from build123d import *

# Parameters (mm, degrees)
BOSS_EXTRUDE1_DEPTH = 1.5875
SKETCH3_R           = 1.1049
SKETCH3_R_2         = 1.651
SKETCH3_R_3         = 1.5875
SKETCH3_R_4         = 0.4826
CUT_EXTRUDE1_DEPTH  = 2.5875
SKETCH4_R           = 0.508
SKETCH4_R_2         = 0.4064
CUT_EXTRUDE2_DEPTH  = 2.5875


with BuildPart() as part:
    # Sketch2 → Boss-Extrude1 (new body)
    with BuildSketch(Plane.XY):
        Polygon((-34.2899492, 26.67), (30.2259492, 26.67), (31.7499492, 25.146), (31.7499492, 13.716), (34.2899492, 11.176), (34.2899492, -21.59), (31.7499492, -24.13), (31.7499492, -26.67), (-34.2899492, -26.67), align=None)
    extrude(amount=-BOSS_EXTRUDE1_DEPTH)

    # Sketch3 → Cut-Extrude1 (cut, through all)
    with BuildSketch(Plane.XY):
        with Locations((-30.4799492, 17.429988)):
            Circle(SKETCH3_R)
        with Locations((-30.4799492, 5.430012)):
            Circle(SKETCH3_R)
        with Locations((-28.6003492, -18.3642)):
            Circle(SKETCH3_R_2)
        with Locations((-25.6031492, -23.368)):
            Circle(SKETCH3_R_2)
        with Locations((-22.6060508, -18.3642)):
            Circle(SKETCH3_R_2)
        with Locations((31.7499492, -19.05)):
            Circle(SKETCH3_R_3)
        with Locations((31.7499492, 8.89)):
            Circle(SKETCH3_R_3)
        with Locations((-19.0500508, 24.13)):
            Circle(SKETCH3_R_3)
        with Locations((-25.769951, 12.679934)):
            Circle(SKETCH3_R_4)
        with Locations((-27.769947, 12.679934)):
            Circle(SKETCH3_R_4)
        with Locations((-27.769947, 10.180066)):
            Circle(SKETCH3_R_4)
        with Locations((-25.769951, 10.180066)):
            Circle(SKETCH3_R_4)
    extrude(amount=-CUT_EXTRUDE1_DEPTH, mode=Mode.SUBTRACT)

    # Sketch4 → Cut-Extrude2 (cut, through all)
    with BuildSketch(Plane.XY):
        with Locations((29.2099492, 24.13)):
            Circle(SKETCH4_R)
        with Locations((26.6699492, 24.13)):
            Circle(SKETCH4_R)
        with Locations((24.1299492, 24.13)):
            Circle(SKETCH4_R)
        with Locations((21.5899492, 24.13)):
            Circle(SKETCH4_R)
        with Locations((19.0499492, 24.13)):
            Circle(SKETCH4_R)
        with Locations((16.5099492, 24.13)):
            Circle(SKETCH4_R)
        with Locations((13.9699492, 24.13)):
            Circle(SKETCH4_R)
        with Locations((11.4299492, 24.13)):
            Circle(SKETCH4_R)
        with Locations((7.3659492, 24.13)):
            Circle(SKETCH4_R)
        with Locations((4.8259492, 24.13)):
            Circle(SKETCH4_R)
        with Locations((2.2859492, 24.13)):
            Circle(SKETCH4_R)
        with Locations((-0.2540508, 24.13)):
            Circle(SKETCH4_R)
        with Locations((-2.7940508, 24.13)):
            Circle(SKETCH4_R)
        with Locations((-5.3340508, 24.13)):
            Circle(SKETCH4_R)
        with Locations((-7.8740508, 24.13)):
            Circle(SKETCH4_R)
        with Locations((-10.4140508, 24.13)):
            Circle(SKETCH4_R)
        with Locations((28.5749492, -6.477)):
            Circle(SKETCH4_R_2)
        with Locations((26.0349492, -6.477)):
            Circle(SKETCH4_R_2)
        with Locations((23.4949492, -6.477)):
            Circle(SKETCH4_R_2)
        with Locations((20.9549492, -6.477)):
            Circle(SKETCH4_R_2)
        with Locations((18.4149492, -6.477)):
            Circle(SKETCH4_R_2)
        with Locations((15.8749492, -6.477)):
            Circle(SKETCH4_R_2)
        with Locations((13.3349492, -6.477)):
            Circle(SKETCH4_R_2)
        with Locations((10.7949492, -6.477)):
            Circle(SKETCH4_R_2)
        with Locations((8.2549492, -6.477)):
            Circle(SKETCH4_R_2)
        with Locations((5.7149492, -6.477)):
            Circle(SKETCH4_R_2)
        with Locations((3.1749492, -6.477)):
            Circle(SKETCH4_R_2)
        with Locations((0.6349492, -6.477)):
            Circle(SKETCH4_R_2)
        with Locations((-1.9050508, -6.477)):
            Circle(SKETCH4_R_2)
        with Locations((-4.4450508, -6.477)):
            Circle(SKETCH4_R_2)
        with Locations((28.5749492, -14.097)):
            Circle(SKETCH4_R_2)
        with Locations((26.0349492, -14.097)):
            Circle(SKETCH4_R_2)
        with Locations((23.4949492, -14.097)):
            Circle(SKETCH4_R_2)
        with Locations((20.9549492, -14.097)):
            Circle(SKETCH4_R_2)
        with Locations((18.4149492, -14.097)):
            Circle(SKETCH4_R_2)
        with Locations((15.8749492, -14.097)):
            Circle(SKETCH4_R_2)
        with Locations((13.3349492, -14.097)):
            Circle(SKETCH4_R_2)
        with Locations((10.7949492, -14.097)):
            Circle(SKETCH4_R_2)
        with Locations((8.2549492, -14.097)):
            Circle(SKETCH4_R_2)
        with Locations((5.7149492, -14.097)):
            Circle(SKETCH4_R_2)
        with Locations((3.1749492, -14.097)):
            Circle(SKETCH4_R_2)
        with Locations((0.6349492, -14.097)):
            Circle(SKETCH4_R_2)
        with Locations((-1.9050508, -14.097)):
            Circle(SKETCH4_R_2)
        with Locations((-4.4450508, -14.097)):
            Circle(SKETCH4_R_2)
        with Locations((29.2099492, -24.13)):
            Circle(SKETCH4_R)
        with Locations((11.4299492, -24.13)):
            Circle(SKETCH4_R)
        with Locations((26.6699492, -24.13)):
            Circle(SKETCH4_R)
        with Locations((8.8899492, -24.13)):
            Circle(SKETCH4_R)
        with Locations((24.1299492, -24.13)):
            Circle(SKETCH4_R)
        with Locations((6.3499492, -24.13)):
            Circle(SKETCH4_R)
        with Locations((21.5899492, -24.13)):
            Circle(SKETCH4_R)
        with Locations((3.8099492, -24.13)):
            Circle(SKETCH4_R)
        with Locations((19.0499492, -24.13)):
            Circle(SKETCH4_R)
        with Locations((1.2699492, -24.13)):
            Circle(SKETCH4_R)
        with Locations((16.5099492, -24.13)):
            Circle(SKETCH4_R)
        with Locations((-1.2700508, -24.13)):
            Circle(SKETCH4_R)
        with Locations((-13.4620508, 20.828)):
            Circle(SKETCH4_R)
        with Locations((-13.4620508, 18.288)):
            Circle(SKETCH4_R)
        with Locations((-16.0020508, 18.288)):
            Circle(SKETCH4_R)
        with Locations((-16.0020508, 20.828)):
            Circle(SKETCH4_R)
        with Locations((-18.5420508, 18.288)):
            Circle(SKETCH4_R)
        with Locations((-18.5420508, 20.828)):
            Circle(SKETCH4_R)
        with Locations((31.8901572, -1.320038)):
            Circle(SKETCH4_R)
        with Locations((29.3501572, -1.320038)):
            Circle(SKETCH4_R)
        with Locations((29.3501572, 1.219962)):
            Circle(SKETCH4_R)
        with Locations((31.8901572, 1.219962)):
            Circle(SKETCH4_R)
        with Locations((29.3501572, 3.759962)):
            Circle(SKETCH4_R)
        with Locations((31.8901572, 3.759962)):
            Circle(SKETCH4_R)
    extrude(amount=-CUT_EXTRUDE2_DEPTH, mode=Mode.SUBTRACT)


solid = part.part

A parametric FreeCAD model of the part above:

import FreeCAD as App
import Part
import Sketcher
Q = App.Units.Quantity


def add_polygon(sketch, points):
    """Adds a closed chain of lines whose ends are joined by coincident constraints."""
    first, n = sketch.GeometryCount, len(points)
    for a, b in zip(points, points[1:] + points[:1]):
        sketch.addGeometry(Part.LineSegment(App.Vector(*a, 0), App.Vector(*b, 0)), False)
    for i in range(n):
        sketch.addConstraint(Sketcher.Constraint("Coincident", first + i, 2, first + (i + 1) % n, 1))

doc = App.newDocument("Part")
body = doc.addObject("PartDesign::Body", "Body")

sketch1 = body.newObject("Sketcher::SketchObject", "Sketch")
sketch1.AttachmentSupport = (doc.getObject("XY_Plane"), [""])
sketch1.MapMode = "FlatFace"
add_polygon(sketch1, [(30.2, 26.7), (-34.3, 26.7), (-34.3, -26.7), (31.7, -26.7), (31.7, -24.1), (34.3, -21.6), (34.3, 11.2), (31.7, 13.7), (31.7, 25.1)])
sketch1.addConstraint([
    Sketcher.Constraint("Horizontal", 0),
    Sketcher.Constraint("Vertical", 1),
    Sketcher.Constraint("Horizontal", 2),
    Sketcher.Constraint("Vertical", 3),
    Sketcher.Constraint("Vertical", 5),
    Sketcher.Constraint("Vertical", 7),
    Sketcher.Constraint("Perpendicular", 4, 6),
    Sketcher.Constraint("Parallel", 6, 8),
    Sketcher.Constraint("Vertical", 3, 2, 6, 2),
    Sketcher.Constraint("Equal", 4, 6),
    Sketcher.Constraint("DistanceY", 1, 2, 1, 1, Q("2.1 in")),
    Sketcher.Constraint("DistanceY", 3, 1, 3, 2, Q("0.1 in")),
    Sketcher.Constraint("DistanceY", 5, 1, 5, 2, Q("1.29 in")),
    Sketcher.Constraint("DistanceY", 7, 1, 7, 2, Q("0.45 in")),
    Sketcher.Constraint("DistanceX", 3, 2, 4, 2, Q("0.1 in")),
    Sketcher.Constraint("DistanceY", -1, 1, 0, 2, Q("1.05 in")),
    Sketcher.Constraint("DistanceX", 0, 2, 0, 1, 64.515898),
    Sketcher.Constraint("DistanceX", 0, 2, -1, 1, 34.289949),
])
pad1 = body.newObject("PartDesign::Pad", "Pad")
pad1.Profile = sketch1
pad1.Length = Q("0.0625 in")
pad1.Reversed = True

sketch2 = body.newObject("Sketcher::SketchObject", "Sketch001")
sketch2.AttachmentSupport = (doc.getObject("XY_Plane"), [""])
sketch2.MapMode = "FlatFace"
sketch2.addGeometry([
    Part.Circle(App.Vector(-30.48, 17.43, 0), App.Vector(0, 0, 1), 1.1),
    Part.Circle(App.Vector(-30.48, 5.43, 0), App.Vector(0, 0, 1), 1.1),
    Part.Circle(App.Vector(-28.6, -18.36, 0), App.Vector(0, 0, 1), 1.65),
    Part.Circle(App.Vector(-25.6, -23.37, 0), App.Vector(0, 0, 1), 1.65),
    Part.Circle(App.Vector(-22.61, -18.36, 0), App.Vector(0, 0, 1), 1.65),
    Part.Circle(App.Vector(31.75, -19.05, 0), App.Vector(0, 0, 1), 1.59),
    Part.Circle(App.Vector(31.75, 8.89, 0), App.Vector(0, 0, 1), 1.59),
    Part.Circle(App.Vector(-19.05, 24.13, 0), App.Vector(0, 0, 1), 1.59),
    Part.Circle(App.Vector(-25.77, 12.68, 0), App.Vector(0, 0, 1), 0.48),
    Part.Circle(App.Vector(-27.77, 12.68, 0), App.Vector(0, 0, 1), 0.48),
    Part.Circle(App.Vector(-27.77, 10.18, 0), App.Vector(0, 0, 1), 0.48),
    Part.Circle(App.Vector(-25.77, 10.18, 0), App.Vector(0, 0, 1), 0.48),
], False)
sketch2.addConstraint([
    Sketcher.Constraint("Equal", 0, 1),
    Sketcher.Constraint("Equal", 2, 3),
    Sketcher.Constraint("Equal", 3, 4),
    Sketcher.Constraint("Equal", 5, 6),
    Sketcher.Constraint("Equal", 6, 7),
    Sketcher.Constraint("Equal", 8, 9),
    Sketcher.Constraint("Equal", 9, 10),
    Sketcher.Constraint("Equal", 10, 11),
    Sketcher.Constraint("Horizontal", 2, 3, 4, 3),
    Sketcher.Constraint("Horizontal", 8, 3, 9, 3),
    Sketcher.Constraint("Horizontal", 10, 3, 11, 3),
    Sketcher.Constraint("Vertical", 0, 3, 1, 3),
    Sketcher.Constraint("Vertical", 5, 3, 6, 3),
    Sketcher.Constraint("Vertical", 9, 3, 10, 3),
    Sketcher.Constraint("Vertical", 8, 3, 11, 3),
    Sketcher.Constraint("Diameter", 2, Q("0.13 in")),
    Sketcher.Constraint("Diameter", 0, Q("0.087 in")),
    Sketcher.Constraint("Diameter", 5, Q("0.125 in")),
    Sketcher.Constraint("Diameter", 8, Q("0.038 in")),
    Sketcher.Constraint("DistanceY", 5, 3, 6, 3, Q("1.1 in")),
    Sketcher.Constraint("DistanceY", 3, 3, -1, 1, Q("0.92 in")),
    Sketcher.Constraint("DistanceY", 5, 3, -1, 1, Q("0.75 in")),
    Sketcher.Constraint("DistanceY", -1, 1, 7, 3, Q("0.95 in")),
    Sketcher.Constraint("DistanceX", 4, 3, 5, 3, Q("2.14 in")),
    Sketcher.Constraint("DistanceX", 4, 3, 7, 3, Q("0.14 in")),
    Sketcher.Constraint("DistanceY", 2, 3, -1, 1, Q("0.723 in")),
    Sketcher.Constraint("DistanceX", 1, 3, 2, 3, Q("0.074 in")),
    Sketcher.Constraint("DistanceX", 2, 3, 3, 3, Q("0.118 in")),
    Sketcher.Constraint("DistanceX", 3, 3, 4, 3, 2.997098),
    Sketcher.Constraint("DistanceX", 0, 3, 8, 3, 4.709998),
    Sketcher.Constraint("DistanceX", 0, 3, -1, 1, 30.479949),
    Sketcher.Constraint("DistanceY", -1, 1, 0, 3, 17.429988),
    Sketcher.Constraint("DistanceY", -1, 1, 1, 3, 5.430012),
    Sketcher.Constraint("DistanceY", 1, 3, 8, 3, 7.249922),
    Sketcher.Constraint("DistanceX", 9, 3, -1, 1, 27.769947),
    Sketcher.Constraint("DistanceY", -1, 1, 10, 3, 10.180066),
])
pocket1 = body.newObject("PartDesign::Pocket", "Pocket")
pocket1.Profile = sketch2
pocket1.Type = "ThroughAll"

sketch3 = body.newObject("Sketcher::SketchObject", "Sketch002")
sketch3.AttachmentSupport = (doc.getObject("XY_Plane"), [""])
sketch3.MapMode = "FlatFace"
sketch3.addGeometry([
    Part.Circle(App.Vector(29.21, 24.13, 0), App.Vector(0, 0, 1), 0.51),
    Part.Circle(App.Vector(26.67, 24.13, 0), App.Vector(0, 0, 1), 0.51),
    Part.Circle(App.Vector(24.13, 24.13, 0), App.Vector(0, 0, 1), 0.51),
    Part.Circle(App.Vector(21.59, 24.13, 0), App.Vector(0, 0, 1), 0.51),
    Part.Circle(App.Vector(19.05, 24.13, 0), App.Vector(0, 0, 1), 0.51),
    Part.Circle(App.Vector(16.51, 24.13, 0), App.Vector(0, 0, 1), 0.51),
    Part.Circle(App.Vector(13.97, 24.13, 0), App.Vector(0, 0, 1), 0.51),
    Part.Circle(App.Vector(11.43, 24.13, 0), App.Vector(0, 0, 1), 0.51),
    Part.Circle(App.Vector(7.37, 24.13, 0), App.Vector(0, 0, 1), 0.51),
    Part.Circle(App.Vector(4.83, 24.13, 0), App.Vector(0, 0, 1), 0.51),
    Part.Circle(App.Vector(2.29, 24.13, 0), App.Vector(0, 0, 1), 0.51),
    Part.Circle(App.Vector(-0.25, 24.13, 0), App.Vector(0, 0, 1), 0.51),
    Part.Circle(App.Vector(-2.79, 24.13, 0), App.Vector(0, 0, 1), 0.51),
    Part.Circle(App.Vector(-5.33, 24.13, 0), App.Vector(0, 0, 1), 0.51),
    Part.Circle(App.Vector(-7.87, 24.13, 0), App.Vector(0, 0, 1), 0.51),
    Part.Circle(App.Vector(-10.41, 24.13, 0), App.Vector(0, 0, 1), 0.51),
    Part.Circle(App.Vector(28.57, -6.48, 0), App.Vector(0, 0, 1), 0.41),
    Part.Circle(App.Vector(26.03, -6.48, 0), App.Vector(0, 0, 1), 0.41),
    Part.Circle(App.Vector(23.49, -6.48, 0), App.Vector(0, 0, 1), 0.41),
    Part.Circle(App.Vector(20.95, -6.48, 0), App.Vector(0, 0, 1), 0.41),
    Part.Circle(App.Vector(18.41, -6.48, 0), App.Vector(0, 0, 1), 0.41),
    Part.Circle(App.Vector(15.87, -6.48, 0), App.Vector(0, 0, 1), 0.41),
    Part.Circle(App.Vector(13.33, -6.48, 0), App.Vector(0, 0, 1), 0.41),
    Part.Circle(App.Vector(10.79, -6.48, 0), App.Vector(0, 0, 1), 0.41),
    Part.Circle(App.Vector(8.25, -6.48, 0), App.Vector(0, 0, 1), 0.41),
    Part.Circle(App.Vector(5.71, -6.48, 0), App.Vector(0, 0, 1), 0.41),
    Part.Circle(App.Vector(3.17, -6.48, 0), App.Vector(0, 0, 1), 0.41),
    Part.Circle(App.Vector(0.63, -6.48, 0), App.Vector(0, 0, 1), 0.41),
    Part.Circle(App.Vector(-1.91, -6.48, 0), App.Vector(0, 0, 1), 0.41),
    Part.Circle(App.Vector(-4.45, -6.48, 0), App.Vector(0, 0, 1), 0.41),
    Part.Circle(App.Vector(28.57, -14.1, 0), App.Vector(0, 0, 1), 0.41),
    Part.Circle(App.Vector(26.03, -14.1, 0), App.Vector(0, 0, 1), 0.41),
    Part.Circle(App.Vector(23.49, -14.1, 0), App.Vector(0, 0, 1), 0.41),
    Part.Circle(App.Vector(20.95, -14.1, 0), App.Vector(0, 0, 1), 0.41),
    Part.Circle(App.Vector(18.41, -14.1, 0), App.Vector(0, 0, 1), 0.41),
    Part.Circle(App.Vector(15.87, -14.1, 0), App.Vector(0, 0, 1), 0.41),
    Part.Circle(App.Vector(13.33, -14.1, 0), App.Vector(0, 0, 1), 0.41),
    Part.Circle(App.Vector(10.79, -14.1, 0), App.Vector(0, 0, 1), 0.41),
    Part.Circle(App.Vector(8.25, -14.1, 0), App.Vector(0, 0, 1), 0.41),
    Part.Circle(App.Vector(5.71, -14.1, 0), App.Vector(0, 0, 1), 0.41),
    Part.Circle(App.Vector(3.17, -14.1, 0), App.Vector(0, 0, 1), 0.41),
    Part.Circle(App.Vector(0.63, -14.1, 0), App.Vector(0, 0, 1), 0.41),
    Part.Circle(App.Vector(-1.91, -14.1, 0), App.Vector(0, 0, 1), 0.41),
    Part.Circle(App.Vector(-4.45, -14.1, 0), App.Vector(0, 0, 1), 0.41),
    Part.Circle(App.Vector(29.21, -24.13, 0), App.Vector(0, 0, 1), 0.51),
    Part.Circle(App.Vector(11.43, -24.13, 0), App.Vector(0, 0, 1), 0.51),
    Part.Circle(App.Vector(26.67, -24.13, 0), App.Vector(0, 0, 1), 0.51),
    Part.Circle(App.Vector(8.89, -24.13, 0), App.Vector(0, 0, 1), 0.51),
    Part.Circle(App.Vector(24.13, -24.13, 0), App.Vector(0, 0, 1), 0.51),
    Part.Circle(App.Vector(6.35, -24.13, 0), App.Vector(0, 0, 1), 0.51),
    Part.Circle(App.Vector(21.59, -24.13, 0), App.Vector(0, 0, 1), 0.51),
    Part.Circle(App.Vector(3.81, -24.13, 0), App.Vector(0, 0, 1), 0.51),
    Part.Circle(App.Vector(19.05, -24.13, 0), App.Vector(0, 0, 1), 0.51),
    Part.Circle(App.Vector(1.27, -24.13, 0), App.Vector(0, 0, 1), 0.51),
    Part.Circle(App.Vector(16.51, -24.13, 0), App.Vector(0, 0, 1), 0.51),
    Part.Circle(App.Vector(-1.27, -24.13, 0), App.Vector(0, 0, 1), 0.51),
    Part.Circle(App.Vector(-13.46, 20.83, 0), App.Vector(0, 0, 1), 0.51),
    Part.Circle(App.Vector(-13.46, 18.29, 0), App.Vector(0, 0, 1), 0.51),
    Part.Circle(App.Vector(-16, 18.29, 0), App.Vector(0, 0, 1), 0.51),
    Part.Circle(App.Vector(-16, 20.83, 0), App.Vector(0, 0, 1), 0.51),
    Part.Circle(App.Vector(-18.54, 18.29, 0), App.Vector(0, 0, 1), 0.51),
    Part.Circle(App.Vector(-18.54, 20.83, 0), App.Vector(0, 0, 1), 0.51),
    Part.Circle(App.Vector(31.89, -1.32, 0), App.Vector(0, 0, 1), 0.51),
    Part.Circle(App.Vector(29.35, -1.32, 0), App.Vector(0, 0, 1), 0.51),
    Part.Circle(App.Vector(29.35, 1.22, 0), App.Vector(0, 0, 1), 0.51),
    Part.Circle(App.Vector(31.89, 1.22, 0), App.Vector(0, 0, 1), 0.51),
    Part.Circle(App.Vector(29.35, 3.76, 0), App.Vector(0, 0, 1), 0.51),
    Part.Circle(App.Vector(31.89, 3.76, 0), App.Vector(0, 0, 1), 0.51),
], False)
sketch3.addConstraint([
    Sketcher.Constraint("Equal", 0, 1),
    Sketcher.Constraint("Equal", 1, 2),
    Sketcher.Constraint("Equal", 2, 3),
    Sketcher.Constraint("Equal", 3, 4),
    Sketcher.Constraint("Equal", 4, 5),
    Sketcher.Constraint("Equal", 5, 6),
    Sketcher.Constraint("Equal", 6, 7),
    Sketcher.Constraint("Equal", 7, 8),
    Sketcher.Constraint("Equal", 8, 9),
    Sketcher.Constraint("Equal", 9, 10),
    Sketcher.Constraint("Equal", 10, 11),
    Sketcher.Constraint("Equal", 11, 12),
    Sketcher.Constraint("Equal", 12, 13),
    Sketcher.Constraint("Equal", 13, 14),
    Sketcher.Constraint("Equal", 14, 15),
    Sketcher.Constraint("Equal", 16, 17),
    Sketcher.Constraint("Equal", 17, 18),
    Sketcher.Constraint("Equal", 18, 19),
    Sketcher.Constraint("Equal", 19, 20),
    Sketcher.Constraint("Equal", 20, 21),
    Sketcher.Constraint("Equal", 21, 22),
    Sketcher.Constraint("Equal", 22, 23),
    Sketcher.Constraint("Equal", 23, 24),
    Sketcher.Constraint("Equal", 24, 25),
    Sketcher.Constraint("Equal", 25, 26),
    Sketcher.Constraint("Equal", 26, 27),
    Sketcher.Constraint("Equal", 27, 28),
    Sketcher.Constraint("Equal", 28, 29),
    Sketcher.Constraint("Equal", 29, 30),
    Sketcher.Constraint("Equal", 30, 31),
    Sketcher.Constraint("Equal", 31, 32),
    Sketcher.Constraint("Equal", 32, 33),
    Sketcher.Constraint("Equal", 33, 34),
    Sketcher.Constraint("Equal", 34, 35),
    Sketcher.Constraint("Equal", 35, 36),
    Sketcher.Constraint("Equal", 36, 37),
    Sketcher.Constraint("Equal", 37, 38),
    Sketcher.Constraint("Equal", 38, 39),
    Sketcher.Constraint("Equal", 39, 40),
    Sketcher.Constraint("Equal", 40, 41),
    Sketcher.Constraint("Equal", 41, 42),
    Sketcher.Constraint("Equal", 42, 43),
    Sketcher.Constraint("Equal", 15, 44),
    Sketcher.Constraint("Equal", 44, 45),
    Sketcher.Constraint("Equal", 45, 46),
    Sketcher.Constraint("Equal", 46, 47),
    Sketcher.Constraint("Equal", 47, 48),
    Sketcher.Constraint("Equal", 48, 49),
    Sketcher.Constraint("Equal", 49, 50),
    Sketcher.Constraint("Equal", 50, 51),
    Sketcher.Constraint("Equal", 51, 52),
    Sketcher.Constraint("Equal", 52, 53),
    Sketcher.Constraint("Equal", 53, 54),
    Sketcher.Constraint("Equal", 54, 55),
    Sketcher.Constraint("Equal", 55, 56),
    Sketcher.Constraint("Equal", 56, 57),
    Sketcher.Constraint("Equal", 57, 58),
    Sketcher.Constraint("Equal", 58, 59),
    Sketcher.Constraint("Equal", 59, 60),
    Sketcher.Constraint("Equal", 60, 61),
    Sketcher.Constraint("Equal", 61, 62),
    Sketcher.Constraint("Equal", 62, 63),
    Sketcher.Constraint("Equal", 63, 64),
    Sketcher.Constraint("Equal", 64, 65),
    Sketcher.Constraint("Equal", 65, 66),
    Sketcher.Constraint("Equal", 66, 67),
    Sketcher.Constraint("Symmetric", 0, 3, 44, 3, -1),
    Sketcher.Constraint("Symmetric", 7, 3, 45, 3, -1),
    Sketcher.Constraint("Symmetric", 1, 3, 46, 3, -1),
    Sketcher.Constraint("Symmetric", 2, 3, 48, 3, -1),
    Sketcher.Constraint("Symmetric", 3, 3, 50, 3, -1),
    Sketcher.Constraint("Symmetric", 4, 3, 52, 3, -1),
    Sketcher.Constraint("Symmetric", 5, 3, 54, 3, -1),
    Sketcher.Constraint("Horizontal", 0, 3, 1, 3),
    Sketcher.Constraint("Horizontal", 1, 3, 2, 3),
    Sketcher.Constraint("Horizontal", 2, 3, 3, 3),
    Sketcher.Constraint("Horizontal", 3, 3, 4, 3),
    Sketcher.Constraint("Horizontal", 4, 3, 5, 3),
    Sketcher.Constraint("Horizontal", 5, 3, 6, 3),
    Sketcher.Constraint("Horizontal", 6, 3, 7, 3),
    Sketcher.Constraint("Horizontal", 7, 3, 8, 3),
    Sketcher.Constraint("Horizontal", 8, 3, 9, 3),
    Sketcher.Constraint("Horizontal", 9, 3, 10, 3),
    Sketcher.Constraint("Horizontal", 10, 3, 11, 3),
    Sketcher.Constraint("Horizontal", 11, 3, 12, 3),
    Sketcher.Constraint("Horizontal", 12, 3, 13, 3),
    Sketcher.Constraint("Horizontal", 13, 3, 14, 3),
    Sketcher.Constraint("Horizontal", 14, 3, 15, 3),
    Sketcher.Constraint("Horizontal", 16, 3, 17, 3),
    Sketcher.Constraint("Horizontal", 17, 3, 18, 3),
    Sketcher.Constraint("Horizontal", 18, 3, 19, 3),
    Sketcher.Constraint("Horizontal", 19, 3, 20, 3),
    Sketcher.Constraint("Horizontal", 20, 3, 21, 3),
    Sketcher.Constraint("Horizontal", 21, 3, 22, 3),
    Sketcher.Constraint("Horizontal", 22, 3, 23, 3),
    Sketcher.Constraint("Horizontal", 23, 3, 24, 3),
    Sketcher.Constraint("Horizontal", 24, 3, 25, 3),
    Sketcher.Constraint("Horizontal", 25, 3, 26, 3),
    Sketcher.Constraint("Horizontal", 26, 3, 27, 3),
    Sketcher.Constraint("Horizontal", 27, 3, 28, 3),
    Sketcher.Constraint("Horizontal", 28, 3, 29, 3),
    Sketcher.Constraint("Horizontal", 30, 3, 31, 3),
    Sketcher.Constraint("Horizontal", 31, 3, 32, 3),
    Sketcher.Constraint("Horizontal", 32, 3, 33, 3),
    Sketcher.Constraint("Horizontal", 33, 3, 34, 3),
    Sketcher.Constraint("Horizontal", 34, 3, 35, 3),
    Sketcher.Constraint("Horizontal", 35, 3, 36, 3),
    Sketcher.Constraint("Horizontal", 36, 3, 37, 3),
    Sketcher.Constraint("Horizontal", 37, 3, 38, 3),
    Sketcher.Constraint("Horizontal", 38, 3, 39, 3),
    Sketcher.Constraint("Horizontal", 39, 3, 40, 3),
    Sketcher.Constraint("Horizontal", 40, 3, 41, 3),
    Sketcher.Constraint("Horizontal", 41, 3, 42, 3),
    Sketcher.Constraint("Horizontal", 42, 3, 43, 3),
    Sketcher.Constraint("Horizontal", 46, 3, 47, 3),
    Sketcher.Constraint("Horizontal", 48, 3, 49, 3),
    Sketcher.Constraint("Horizontal", 50, 3, 51, 3),
    Sketcher.Constraint("Horizontal", 52, 3, 53, 3),
    Sketcher.Constraint("Horizontal", 54, 3, 55, 3),
    Sketcher.Constraint("Horizontal", 57, 3, 58, 3),
    Sketcher.Constraint("Horizontal", 56, 3, 59, 3),
    Sketcher.Constraint("Horizontal", 58, 3, 60, 3),
    Sketcher.Constraint("Horizontal", 59, 3, 61, 3),
    Sketcher.Constraint("Horizontal", 62, 3, 63, 3),
    Sketcher.Constraint("Horizontal", 64, 3, 65, 3),
    Sketcher.Constraint("Horizontal", 66, 3, 67, 3),
    Sketcher.Constraint("Vertical", 16, 3, 30, 3),
    Sketcher.Constraint("Vertical", 17, 3, 31, 3),
    Sketcher.Constraint("Vertical", 18, 3, 32, 3),
    Sketcher.Constraint("Vertical", 19, 3, 33, 3),
    Sketcher.Constraint("Vertical", 20, 3, 34, 3),
    Sketcher.Constraint("Vertical", 21, 3, 35, 3),
    Sketcher.Constraint("Vertical", 22, 3, 36, 3),
    Sketcher.Constraint("Vertical", 23, 3, 37, 3),
    Sketcher.Constraint("Vertical", 24, 3, 38, 3),
    Sketcher.Constraint("Vertical", 25, 3, 39, 3),
    Sketcher.Constraint("Vertical", 26, 3, 40, 3),
    Sketcher.Constraint("Vertical", 27, 3, 41, 3),
    Sketcher.Constraint("Vertical", 28, 3, 42, 3),
    Sketcher.Constraint("Vertical", 29, 3, 43, 3),
    Sketcher.Constraint("Vertical", 56, 3, 57, 3),
    Sketcher.Constraint("Vertical", 58, 3, 59, 3),
    Sketcher.Constraint("Vertical", 60, 3, 61, 3),
    Sketcher.Constraint("Vertical", 63, 3, 64, 3),
    Sketcher.Constraint("Vertical", 62, 3, 65, 3),
    Sketcher.Constraint("Vertical", 64, 3, 66, 3),
    Sketcher.Constraint("Vertical", 65, 3, 67, 3),
    Sketcher.Constraint("Diameter", 0, Q("0.04 in")),
    Sketcher.Constraint("Diameter", 16, Q("0.032 in")),
    Sketcher.Constraint("DistanceY", -1, 1, 0, 3, Q("0.95 in")),
    Sketcher.Constraint("DistanceY", -1, 1, 56, 3, Q("0.82 in")),
    Sketcher.Constraint("DistanceY", -1, 1, 57, 3, Q("0.72 in")),
    Sketcher.Constraint("DistanceY", 16, 3, -1, 1, Q("0.255 in")),
    Sketcher.Constraint("DistanceY", 30, 3, -1, 1, Q("0.555 in")),
    Sketcher.Constraint("DistanceX", -1, 1, 0, 3, 29.209949),
    Sketcher.Constraint("DistanceX", -1, 1, 1, 3, 26.669949),
    Sketcher.Constraint("DistanceX", -1, 1, 2, 3, 24.129949),
    Sketcher.Constraint("DistanceX", -1, 1, 3, 3, 21.589949),
    Sketcher.Constraint("DistanceX", -1, 1, 4, 3, 19.049949),
    Sketcher.Constraint("DistanceX", -1, 1, 5, 3, 16.509949),
    Sketcher.Constraint("DistanceX", -1, 1, 6, 3, 13.969949),
    Sketcher.Constraint("DistanceX", -1, 1, 7, 3, 11.429949),
    Sketcher.Constraint("DistanceX", -1, 1, 8, 3, 7.365949),
    Sketcher.Constraint("DistanceX", -1, 1, 9, 3, 4.825949),
    Sketcher.Constraint("DistanceX", -1, 1, 10, 3, 2.285949),
    Sketcher.Constraint("DistanceX", 11, 3, -1, 1, 0.254051),
    Sketcher.Constraint("DistanceX", 12, 3, -1, 1, 2.794051),
    Sketcher.Constraint("DistanceX", 13, 3, -1, 1, 5.334051),
    Sketcher.Constraint("DistanceX", 14, 3, -1, 1, 7.874051),
    Sketcher.Constraint("DistanceX", 15, 3, -1, 1, 10.414051),
    Sketcher.Constraint("DistanceX", -1, 1, 16, 3, 28.574949),
    Sketcher.Constraint("DistanceX", -1, 1, 17, 3, 26.034949),
    Sketcher.Constraint("DistanceX", -1, 1, 18, 3, 23.494949),
    Sketcher.Constraint("DistanceX", -1, 1, 19, 3, 20.954949),
    Sketcher.Constraint("DistanceX", -1, 1, 20, 3, 18.414949),
    Sketcher.Constraint("DistanceX", -1, 1, 21, 3, 15.874949),
    Sketcher.Constraint("DistanceX", -1, 1, 22, 3, 13.334949),
    Sketcher.Constraint("DistanceX", -1, 1, 23, 3, 10.794949),
    Sketcher.Constraint("DistanceX", -1, 1, 24, 3, 8.254949),
    Sketcher.Constraint("DistanceX", -1, 1, 25, 3, 5.714949),
    Sketcher.Constraint("DistanceX", -1, 1, 26, 3, 3.174949),
    Sketcher.Constraint("DistanceX", -1, 1, 27, 3, 0.634949),
    Sketcher.Constraint("DistanceX", 28, 3, -1, 1, 1.905051),
    Sketcher.Constraint("DistanceX", 29, 3, -1, 1, 4.445051),
    Sketcher.Constraint("DistanceX", -1, 1, 47, 3, 8.889949),
    Sketcher.Constraint("DistanceX", -1, 1, 49, 3, 6.349949),
    Sketcher.Constraint("DistanceX", -1, 1, 51, 3, 3.809949),
    Sketcher.Constraint("DistanceX", -1, 1, 53, 3, 1.269949),
    Sketcher.Constraint("DistanceX", 55, 3, -1, 1, 1.270051),
    Sketcher.Constraint("DistanceX", 56, 3, -1, 1, 13.462051),
    Sketcher.Constraint("DistanceX", 58, 3, -1, 1, 16.002051),
    Sketcher.Constraint("DistanceX", 60, 3, -1, 1, 18.542051),
    Sketcher.Constraint("DistanceY", -1, 1, 66, 3, 3.759962),
    Sketcher.Constraint("DistanceX", -1, 1, 62, 3, 31.890157),
    Sketcher.Constraint("DistanceY", 62, 3, -1, 1, 1.320038),
    Sketcher.Constraint("DistanceX", -1, 1, 63, 3, 29.350157),
    Sketcher.Constraint("DistanceY", -1, 1, 64, 3, 1.219962),
])
pocket2 = body.newObject("PartDesign::Pocket", "Pocket001")
pocket2.Profile = sketch3
pocket2.Type = "ThroughAll"

doc.recompute()
